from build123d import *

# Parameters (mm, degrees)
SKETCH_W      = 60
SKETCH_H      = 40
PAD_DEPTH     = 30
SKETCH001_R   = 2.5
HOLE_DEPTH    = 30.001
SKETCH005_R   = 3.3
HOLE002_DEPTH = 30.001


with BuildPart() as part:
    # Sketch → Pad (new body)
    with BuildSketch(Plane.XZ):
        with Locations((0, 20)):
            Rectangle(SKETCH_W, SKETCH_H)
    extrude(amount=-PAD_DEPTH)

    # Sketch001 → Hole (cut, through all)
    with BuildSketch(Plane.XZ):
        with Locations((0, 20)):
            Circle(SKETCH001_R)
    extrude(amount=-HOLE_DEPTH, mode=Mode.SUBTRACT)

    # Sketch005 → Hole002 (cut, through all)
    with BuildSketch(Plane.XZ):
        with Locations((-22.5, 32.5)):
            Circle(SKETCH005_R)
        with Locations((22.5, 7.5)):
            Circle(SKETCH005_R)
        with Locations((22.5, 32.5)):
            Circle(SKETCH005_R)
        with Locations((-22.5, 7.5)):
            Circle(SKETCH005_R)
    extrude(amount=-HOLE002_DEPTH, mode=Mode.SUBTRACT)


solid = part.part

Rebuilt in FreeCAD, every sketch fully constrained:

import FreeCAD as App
import Part
import Sketcher

V = App.Vector


def add_polygon(sketch, points):
    """Adds a closed chain of lines whose ends are joined by coincident constraints."""
    first, n = sketch.GeometryCount, len(points)
    for a, b in zip(points, points[1:] + points[:1]):
        sketch.addGeometry(Part.LineSegment(App.Vector(*a, 0), App.Vector(*b, 0)), False)
    for i in range(n):
        sketch.addConstraint(Sketcher.Constraint("Coincident", first + i, 2, first + (i + 1) % n, 1))

doc = App.newDocument("Part")
body = doc.addObject("PartDesign::Body", "Body")

# Sketch on XZ plane
sketch1 = body.newObject("Sketcher::SketchObject", "Sketch")
sketch1.AttachmentSupport = (doc.getObject("XZ_Plane"), [""])
sketch1.MapMode = "FlatFace"
add_polygon(sketch1, [(-30, 40), (-30, 0), (30, 0), (30, 40)])  # lines 0-3
sketch1.addConstraint([
    Sketcher.Constraint("Vertical", 0),
    Sketcher.Constraint("Horizontal", 1),
    Sketcher.Constraint("Vertical", 2),
    Sketcher.Constraint("Horizontal", 3),
    Sketcher.Constraint("Symmetric", 0, 2, 1, 2, -1, 1),
    Sketcher.Constraint("DistanceX", 1, 1, 1, 2, 60.0),
    Sketcher.Constraint("DistanceY", 0, 2, 0, 1, 40.0),
])
pad1 = body.newObject("PartDesign::Pad", "Pad")
pad1.Profile = sketch1
pad1.Length = 30
pad1.Reversed = True

# Sketch on XZ plane
sketch2 = body.newObject("Sketcher::SketchObject", "Sketch001")
sketch2.AttachmentSupport = (doc.getObject("XZ_Plane"), [""])
sketch2.MapMode = "FlatFace"
sketch2.addGeometry(Part.Circle(V(0, 20, 0), V(0, 0, 1), 2.5), False)
sketch2.addConstraint([
    Sketcher.Constraint("PointOnObject", 0, 3, -2),
    Sketcher.Constraint("Diameter", 0, 5.0),
    Sketcher.Constraint("DistanceY", -1, 1, 0, 3, 20.0),
])
pocket1 = body.newObject("PartDesign::Pocket", "Pocket")
pocket1.Profile = sketch2
pocket1.Type = "ThroughAll"

# Sketch on XZ plane
sketch3 = body.newObject("Sketcher::SketchObject", "Sketch002")
sketch3.AttachmentSupport = (doc.getObject("XZ_Plane"), [""])
sketch3.MapMode = "FlatFace"
sketch3.addGeometry([
    Part.Circle(V(-22.5, 32.5, 0), V(0, 0, 1), 3.3),
    Part.Circle(V(22.5, 7.5, 0), V(0, 0, 1), 3.3),
    Part.Circle(V(22.5, 32.5, 0), V(0, 0, 1), 3.3),
    Part.Circle(V(-22.5, 7.5, 0), V(0, 0, 1), 3.3),
], False)
sketch3.addConstraint([
    Sketcher.Constraint("Equal", 0, 1),
    Sketcher.Constraint("Equal", 1, 2),
    Sketcher.Constraint("Equal", 2, 3),
    Sketcher.Constraint("Symmetric", 0, 3, 2, 3, -2),
    Sketcher.Constraint("Symmetric", 1, 3, 3, 3, -2),
    Sketcher.Constraint("Vertical", 1, 3, 2, 3),
    Sketcher.Constraint("Diameter", 0, 6.6),
    Sketcher.Constraint("DistanceX", 0, 3, 1, 3, 45.0),
    Sketcher.Constraint("DistanceY", 1, 3, 0, 3, 25.0),
    Sketcher.Constraint("DistanceY", -1, 1, 0, 3, 32.5),
])
pocket2 = body.newObject("PartDesign::Pocket", "Pocket001")
pocket2.Profile = sketch3
pocket2.Type = "ThroughAll"

doc.recompute()
